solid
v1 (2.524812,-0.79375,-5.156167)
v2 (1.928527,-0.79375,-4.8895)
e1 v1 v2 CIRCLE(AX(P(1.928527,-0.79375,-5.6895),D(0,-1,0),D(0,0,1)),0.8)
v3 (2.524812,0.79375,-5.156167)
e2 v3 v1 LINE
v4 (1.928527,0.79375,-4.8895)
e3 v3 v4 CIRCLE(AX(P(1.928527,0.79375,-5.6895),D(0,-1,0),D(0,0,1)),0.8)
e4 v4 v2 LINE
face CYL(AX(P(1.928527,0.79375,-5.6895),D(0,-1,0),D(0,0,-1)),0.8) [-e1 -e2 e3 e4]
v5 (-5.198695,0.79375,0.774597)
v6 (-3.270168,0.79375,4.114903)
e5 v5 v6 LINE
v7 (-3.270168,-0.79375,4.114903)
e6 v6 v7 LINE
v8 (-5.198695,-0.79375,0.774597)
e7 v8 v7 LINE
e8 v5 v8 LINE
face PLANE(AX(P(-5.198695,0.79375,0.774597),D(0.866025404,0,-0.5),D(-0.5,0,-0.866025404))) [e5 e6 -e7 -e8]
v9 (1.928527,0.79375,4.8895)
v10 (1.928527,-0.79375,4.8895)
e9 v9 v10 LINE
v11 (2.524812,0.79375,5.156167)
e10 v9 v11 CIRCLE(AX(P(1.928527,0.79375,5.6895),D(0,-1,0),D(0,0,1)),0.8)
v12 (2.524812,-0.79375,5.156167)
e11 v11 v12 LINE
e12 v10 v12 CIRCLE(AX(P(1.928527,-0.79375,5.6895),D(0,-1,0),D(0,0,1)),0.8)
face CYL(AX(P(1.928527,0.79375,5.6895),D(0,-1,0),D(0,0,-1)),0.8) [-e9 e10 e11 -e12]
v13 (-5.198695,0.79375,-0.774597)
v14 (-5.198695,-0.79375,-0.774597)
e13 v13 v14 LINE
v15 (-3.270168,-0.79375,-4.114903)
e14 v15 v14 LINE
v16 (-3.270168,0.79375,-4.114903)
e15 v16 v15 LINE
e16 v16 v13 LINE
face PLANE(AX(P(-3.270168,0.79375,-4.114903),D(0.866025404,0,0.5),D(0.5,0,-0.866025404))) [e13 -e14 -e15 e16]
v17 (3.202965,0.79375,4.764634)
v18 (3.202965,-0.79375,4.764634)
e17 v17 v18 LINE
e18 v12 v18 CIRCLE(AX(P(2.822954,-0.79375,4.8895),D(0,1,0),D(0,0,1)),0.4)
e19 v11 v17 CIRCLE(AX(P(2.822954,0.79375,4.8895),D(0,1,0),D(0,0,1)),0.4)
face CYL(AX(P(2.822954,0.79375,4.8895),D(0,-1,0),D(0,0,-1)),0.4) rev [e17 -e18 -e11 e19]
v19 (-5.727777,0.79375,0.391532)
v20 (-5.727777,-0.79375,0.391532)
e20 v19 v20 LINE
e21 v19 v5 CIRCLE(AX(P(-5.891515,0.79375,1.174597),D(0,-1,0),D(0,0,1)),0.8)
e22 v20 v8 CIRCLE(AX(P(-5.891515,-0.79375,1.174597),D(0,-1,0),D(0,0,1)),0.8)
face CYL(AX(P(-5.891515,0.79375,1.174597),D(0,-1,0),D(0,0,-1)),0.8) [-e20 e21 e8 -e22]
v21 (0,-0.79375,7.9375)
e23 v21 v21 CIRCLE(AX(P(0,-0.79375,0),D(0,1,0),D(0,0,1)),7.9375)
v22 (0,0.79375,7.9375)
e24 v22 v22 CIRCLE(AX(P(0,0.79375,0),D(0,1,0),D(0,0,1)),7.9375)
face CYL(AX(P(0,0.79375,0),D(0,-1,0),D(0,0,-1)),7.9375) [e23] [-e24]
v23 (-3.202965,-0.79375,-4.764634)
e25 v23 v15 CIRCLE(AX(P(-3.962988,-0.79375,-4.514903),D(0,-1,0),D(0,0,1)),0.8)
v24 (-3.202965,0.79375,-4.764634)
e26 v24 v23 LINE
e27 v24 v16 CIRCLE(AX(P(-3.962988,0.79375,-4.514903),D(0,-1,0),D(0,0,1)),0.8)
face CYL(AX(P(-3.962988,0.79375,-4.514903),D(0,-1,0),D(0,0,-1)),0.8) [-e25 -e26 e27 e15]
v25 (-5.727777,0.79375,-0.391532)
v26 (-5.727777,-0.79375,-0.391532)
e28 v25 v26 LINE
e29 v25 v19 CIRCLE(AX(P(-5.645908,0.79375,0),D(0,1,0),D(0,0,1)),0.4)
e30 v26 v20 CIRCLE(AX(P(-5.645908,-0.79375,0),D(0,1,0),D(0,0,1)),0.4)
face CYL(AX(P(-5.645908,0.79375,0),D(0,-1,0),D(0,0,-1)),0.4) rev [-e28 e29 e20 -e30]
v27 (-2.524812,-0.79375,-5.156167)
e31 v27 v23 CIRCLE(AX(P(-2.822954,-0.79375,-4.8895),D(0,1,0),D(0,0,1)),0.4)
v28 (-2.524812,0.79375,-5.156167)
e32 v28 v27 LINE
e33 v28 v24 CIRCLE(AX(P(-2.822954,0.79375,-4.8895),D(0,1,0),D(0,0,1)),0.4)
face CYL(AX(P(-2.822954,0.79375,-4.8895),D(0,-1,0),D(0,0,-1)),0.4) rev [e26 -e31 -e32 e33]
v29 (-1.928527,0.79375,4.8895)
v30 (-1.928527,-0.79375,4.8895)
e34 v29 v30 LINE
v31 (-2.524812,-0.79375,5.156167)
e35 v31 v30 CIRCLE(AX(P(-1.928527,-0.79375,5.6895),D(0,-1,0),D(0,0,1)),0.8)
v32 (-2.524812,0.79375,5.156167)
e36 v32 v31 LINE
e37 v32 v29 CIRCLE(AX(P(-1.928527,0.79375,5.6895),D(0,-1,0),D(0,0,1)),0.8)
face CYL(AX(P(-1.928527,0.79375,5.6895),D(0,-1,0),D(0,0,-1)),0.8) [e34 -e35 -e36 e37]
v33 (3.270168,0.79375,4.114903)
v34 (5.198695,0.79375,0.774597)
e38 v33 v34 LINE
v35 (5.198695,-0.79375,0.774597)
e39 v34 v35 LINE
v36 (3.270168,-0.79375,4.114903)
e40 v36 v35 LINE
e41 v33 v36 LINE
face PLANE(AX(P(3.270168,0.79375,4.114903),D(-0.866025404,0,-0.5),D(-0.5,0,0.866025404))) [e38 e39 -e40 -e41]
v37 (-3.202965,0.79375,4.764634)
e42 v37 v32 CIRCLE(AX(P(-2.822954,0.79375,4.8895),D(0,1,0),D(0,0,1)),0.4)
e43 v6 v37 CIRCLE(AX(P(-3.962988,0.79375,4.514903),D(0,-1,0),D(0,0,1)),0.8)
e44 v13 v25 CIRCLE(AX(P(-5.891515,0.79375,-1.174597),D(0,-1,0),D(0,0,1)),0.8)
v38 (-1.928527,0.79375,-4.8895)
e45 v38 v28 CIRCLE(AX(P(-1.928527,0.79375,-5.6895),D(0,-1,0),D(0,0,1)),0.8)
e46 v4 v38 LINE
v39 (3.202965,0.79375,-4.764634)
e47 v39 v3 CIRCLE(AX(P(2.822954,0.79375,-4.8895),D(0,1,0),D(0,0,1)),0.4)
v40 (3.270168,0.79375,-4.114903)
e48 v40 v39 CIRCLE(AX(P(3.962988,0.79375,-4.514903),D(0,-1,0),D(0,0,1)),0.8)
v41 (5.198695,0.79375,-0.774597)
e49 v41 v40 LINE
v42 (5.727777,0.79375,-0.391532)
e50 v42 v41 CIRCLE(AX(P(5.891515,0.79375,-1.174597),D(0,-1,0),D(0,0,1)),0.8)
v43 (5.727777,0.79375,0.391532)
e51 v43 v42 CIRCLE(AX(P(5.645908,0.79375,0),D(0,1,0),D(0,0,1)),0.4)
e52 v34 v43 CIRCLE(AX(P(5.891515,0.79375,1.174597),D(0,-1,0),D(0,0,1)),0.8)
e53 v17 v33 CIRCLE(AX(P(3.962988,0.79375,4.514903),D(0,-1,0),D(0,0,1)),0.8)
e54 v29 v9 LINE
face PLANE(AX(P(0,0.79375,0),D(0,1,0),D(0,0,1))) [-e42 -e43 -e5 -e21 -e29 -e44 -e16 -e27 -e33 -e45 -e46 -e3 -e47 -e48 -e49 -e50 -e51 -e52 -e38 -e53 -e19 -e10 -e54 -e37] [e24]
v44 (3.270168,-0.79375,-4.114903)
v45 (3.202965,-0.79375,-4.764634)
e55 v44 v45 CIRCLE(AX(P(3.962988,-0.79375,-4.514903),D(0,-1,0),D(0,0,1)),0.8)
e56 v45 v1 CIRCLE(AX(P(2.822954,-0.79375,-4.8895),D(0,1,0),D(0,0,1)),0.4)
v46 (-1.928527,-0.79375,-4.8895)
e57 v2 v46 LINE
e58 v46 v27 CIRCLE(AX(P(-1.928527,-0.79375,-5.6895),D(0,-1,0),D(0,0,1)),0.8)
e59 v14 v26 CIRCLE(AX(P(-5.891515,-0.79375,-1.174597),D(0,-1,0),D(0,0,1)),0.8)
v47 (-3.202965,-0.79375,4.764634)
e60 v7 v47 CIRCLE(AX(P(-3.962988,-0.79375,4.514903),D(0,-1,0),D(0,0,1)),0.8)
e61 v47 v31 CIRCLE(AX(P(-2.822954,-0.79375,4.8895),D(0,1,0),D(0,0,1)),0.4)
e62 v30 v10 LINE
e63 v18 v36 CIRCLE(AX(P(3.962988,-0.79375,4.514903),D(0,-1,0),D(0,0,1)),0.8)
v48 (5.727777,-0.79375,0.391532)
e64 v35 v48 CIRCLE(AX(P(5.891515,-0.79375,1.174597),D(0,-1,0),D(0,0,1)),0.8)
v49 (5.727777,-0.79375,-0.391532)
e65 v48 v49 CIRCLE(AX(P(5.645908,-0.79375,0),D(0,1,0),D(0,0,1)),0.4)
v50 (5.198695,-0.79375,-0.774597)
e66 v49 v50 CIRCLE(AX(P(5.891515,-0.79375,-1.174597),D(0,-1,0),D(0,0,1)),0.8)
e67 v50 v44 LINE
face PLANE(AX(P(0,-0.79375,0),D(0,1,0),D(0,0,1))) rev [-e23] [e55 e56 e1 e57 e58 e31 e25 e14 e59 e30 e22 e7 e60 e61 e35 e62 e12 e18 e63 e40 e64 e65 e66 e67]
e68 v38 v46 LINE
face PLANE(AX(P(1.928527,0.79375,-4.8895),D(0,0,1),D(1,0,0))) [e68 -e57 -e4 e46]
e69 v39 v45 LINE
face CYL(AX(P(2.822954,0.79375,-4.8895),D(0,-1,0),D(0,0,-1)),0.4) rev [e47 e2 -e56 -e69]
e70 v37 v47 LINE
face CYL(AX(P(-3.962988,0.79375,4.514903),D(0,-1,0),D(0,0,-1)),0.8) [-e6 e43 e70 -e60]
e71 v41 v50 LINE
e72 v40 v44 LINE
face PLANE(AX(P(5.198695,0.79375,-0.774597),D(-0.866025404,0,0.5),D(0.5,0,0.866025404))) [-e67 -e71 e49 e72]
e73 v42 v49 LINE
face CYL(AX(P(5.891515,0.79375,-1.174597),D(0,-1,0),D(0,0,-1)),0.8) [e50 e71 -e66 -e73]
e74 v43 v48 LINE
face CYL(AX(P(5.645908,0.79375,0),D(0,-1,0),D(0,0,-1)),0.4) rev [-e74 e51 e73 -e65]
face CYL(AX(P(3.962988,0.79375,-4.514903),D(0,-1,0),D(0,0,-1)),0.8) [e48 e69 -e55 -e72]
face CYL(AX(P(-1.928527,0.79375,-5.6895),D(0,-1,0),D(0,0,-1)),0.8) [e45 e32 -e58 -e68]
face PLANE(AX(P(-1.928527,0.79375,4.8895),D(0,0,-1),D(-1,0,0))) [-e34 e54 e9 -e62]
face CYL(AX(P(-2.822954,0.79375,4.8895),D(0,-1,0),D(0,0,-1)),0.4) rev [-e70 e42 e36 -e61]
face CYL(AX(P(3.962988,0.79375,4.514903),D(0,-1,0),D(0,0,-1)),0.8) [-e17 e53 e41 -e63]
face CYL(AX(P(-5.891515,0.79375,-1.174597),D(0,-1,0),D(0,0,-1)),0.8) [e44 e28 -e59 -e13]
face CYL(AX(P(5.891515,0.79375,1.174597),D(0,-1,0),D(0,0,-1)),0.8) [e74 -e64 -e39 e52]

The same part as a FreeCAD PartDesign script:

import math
import FreeCAD as App
import Part
import Sketcher
Q = App.Units.Quantity

doc = App.newDocument("Part")
params = doc.addObject("Spreadsheet::Sheet", "Params")
for row, (alias, value) in enumerate([
    ("sketch1_radius", "0.8 mm"),
    ("sketch1_radius2", "0.4 mm"),
    ("pad1_length", "1.5875 mm"),
], start=1):
    params.set(f"A{row}", alias)
    params.set(f"B{row}", "=" + value)
    params.setAlias(f"B{row}", alias)

body = doc.addObject("PartDesign::Body", "Body")

sketch1 = body.newObject("Sketcher::SketchObject", "Sketch")
sketch1.AttachmentSupport = (doc.getObject("XZ_Plane"), [""])
sketch1.MapMode = "FlatFace"
sketch1.addGeometry(Part.Circle(App.Vector(0, 0, 0), App.Vector(0, 0, 1), 7.94), False)
sketch1.addGeometry(Part.LineSegment(App.Vector(5.2, 0.77, 0), App.Vector(3.27, 4.11, 0)), False)
sketch1.addGeometry(Part.ArcOfCircle(Part.Circle(App.Vector(3.96, 4.51, 0), App.Vector(0, 0, 1), 0.8), math.radians(162), math.radians(210)), False)
sketch1.addGeometry(Part.ArcOfCircle(Part.Circle(App.Vector(2.82, 4.89, 0), App.Vector(0, 0, 1), 0.4), math.radians(-18), math.radians(138)), False)
sketch1.addGeometry(Part.ArcOfCircle(Part.Circle(App.Vector(1.93, 5.69, 0), App.Vector(0, 0, 1), 0.8), math.radians(-90), math.radians(-42)), False)
sketch1.addGeometry(Part.LineSegment(App.Vector(1.93, 4.89, 0), App.Vector(-1.93, 4.89, 0)), False)
sketch1.addGeometry(Part.ArcOfCircle(Part.Circle(App.Vector(-1.93, 5.69, 0), App.Vector(0, 0, 1), 0.8), math.radians(-138), math.radians(-90)), False)
sketch1.addGeometry(Part.ArcOfCircle(Part.Circle(App.Vector(-2.82, 4.89, 0), App.Vector(0, 0, 1), 0.4), math.radians(42), math.radians(198)), False)
sketch1.addGeometry(Part.ArcOfCircle(Part.Circle(App.Vector(-3.96, 4.51, 0), App.Vector(0, 0, 1), 0.8), math.radians(-30), math.radians(18)), False)
sketch1.addGeometry(Part.LineSegment(App.Vector(-3.27, 4.11, 0), App.Vector(-5.2, 0.77, 0)), False)
sketch1.addGeometry(Part.ArcOfCircle(Part.Circle(App.Vector(-5.89, 1.17, 0), App.Vector(0, 0, 1), 0.8), math.radians(-78), math.radians(-30)), False)
sketch1.addGeometry(Part.ArcOfCircle(Part.Circle(App.Vector(-5.65, 0, 0), App.Vector(0, 0, 1), 0.4), math.radians(102), math.radians(258)), False)
sketch1.addGeometry(Part.ArcOfCircle(Part.Circle(App.Vector(-5.89, -1.17, 0), App.Vector(0, 0, 1), 0.8), math.radians(30), math.radians(78)), False)
sketch1.addGeometry(Part.LineSegment(App.Vector(-5.2, -0.77, 0), App.Vector(-3.27, -4.11, 0)), False)
sketch1.addGeometry(Part.ArcOfCircle(Part.Circle(App.Vector(-3.96, -4.51, 0), App.Vector(0, 0, 1), 0.8), math.radians(-18), math.radians(30)), False)
sketch1.addGeometry(Part.ArcOfCircle(Part.Circle(App.Vector(-2.82, -4.89, 0), App.Vector(0, 0, 1), 0.4), math.radians(162), math.radians(318)), False)
sketch1.addGeometry(Part.ArcOfCircle(Part.Circle(App.Vector(-1.93, -5.69, 0), App.Vector(0, 0, 1), 0.8), math.radians(90), math.radians(138)), False)
sketch1.addGeometry(Part.LineSegment(App.Vector(-1.93, -4.89, 0), App.Vector(1.93, -4.89, 0)), False)
sketch1.addGeometry(Part.ArcOfCircle(Part.Circle(App.Vector(1.93, -5.69, 0), App.Vector(0, 0, 1), 0.8), math.radians(42), math.radians(90)), False)
sketch1.addGeometry(Part.ArcOfCircle(Part.Circle(App.Vector(2.82, -4.89, 0), App.Vector(0, 0, 1), 0.4), math.radians(-138), math.radians(18)), False)
sketch1.addGeometry(Part.ArcOfCircle(Part.Circle(App.Vector(3.96, -4.51, 0), App.Vector(0, 0, 1), 0.8), math.radians(150), math.radians(198)), False)
sketch1.addGeometry(Part.LineSegment(App.Vector(3.27, -4.11, 0), App.Vector(5.2, -0.77, 0)), False)
sketch1.addGeometry(Part.ArcOfCircle(Part.Circle(App.Vector(5.89, -1.17, 0), App.Vector(0, 0, 1), 0.8), math.radians(102), math.radians(150)), False)
sketch1.addGeometry(Part.ArcOfCircle(Part.Circle(App.Vector(5.65, 0, 0), App.Vector(0, 0, 1), 0.4), math.radians(-78), math.radians(78)), False)
sketch1.addGeometry(Part.ArcOfCircle(Part.Circle(App.Vector(5.89, 1.17, 0), App.Vector(0, 0, 1), 0.8), math.radians(-150), math.radians(-102)), False)
sketch1.addConstraint(Sketcher.Constraint("Tangent", 1, 2, 2, 2))
sketch1.addConstraint(Sketcher.Constraint("Tangent", 2, 1, 3, 1))
sketch1.addConstraint(Sketcher.Constraint("Tangent", 3, 2, 4, 2))
sketch1.addConstraint(Sketcher.Constraint("Tangent", 4, 1, 5, 1))
sketch1.addConstraint(Sketcher.Constraint("Tangent", 5, 2, 6, 2))
sketch1.addConstraint(Sketcher.Constraint("Tangent", 6, 1, 7, 1))
sketch1.addConstraint(Sketcher.Constraint("Tangent", 7, 2, 8, 2))
sketch1.addConstraint(Sketcher.Constraint("Tangent", 8, 1, 9, 1))
sketch1.addConstraint(Sketcher.Constraint("Tangent", 9, 2, 10, 2))
sketch1.addConstraint(Sketcher.Constraint("Tangent", 10, 1, 11, 1))
sketch1.addConstraint(Sketcher.Constraint("Tangent", 11, 2, 12, 2))
sketch1.addConstraint(Sketcher.Constraint("Tangent", 12, 1, 13, 1))
sketch1.addConstraint(Sketcher.Constraint("Tangent", 13, 2, 14, 2))
sketch1.addConstraint(Sketcher.Constraint("Tangent", 14, 1, 15, 1))
sketch1.addConstraint(Sketcher.Constraint("Tangent", 15, 2, 16, 2))
sketch1.addConstraint(Sketcher.Constraint("Tangent", 16, 1, 17, 1))
sketch1.addConstraint(Sketcher.Constraint("Tangent", 17, 2, 18, 2))
sketch1.addConstraint(Sketcher.Constraint("Tangent", 18, 1, 19, 1))
sketch1.addConstraint(Sketcher.Constraint("Tangent", 19, 2, 20, 2))
sketch1.addConstraint(Sketcher.Constraint("Tangent", 20, 1, 21, 1))
sketch1.addConstraint(Sketcher.Constraint("Tangent", 21, 2, 22, 2))
sketch1.addConstraint(Sketcher.Constraint("Tangent", 22, 1, 23, 1))
sketch1.addConstraint(Sketcher.Constraint("Tangent", 23, 2, 24, 2))
sketch1.addConstraint(Sketcher.Constraint("Tangent", 24, 1, 1, 1))
sketch1.addConstraint(Sketcher.Constraint("Horizontal", 5))
sketch1.addConstraint(Sketcher.Constraint("Horizontal", 17))
sketch1.addConstraint(Sketcher.Constraint("Coincident", 0, 3, -1, 1))
sketch1.addConstraint(Sketcher.Constraint("Equal", 2, 4))
sketch1.addConstraint(Sketcher.Constraint("Equal", 4, 6))
sketch1.addConstraint(Sketcher.Constraint("Equal", 3, 7))
sketch1.addConstraint(Sketcher.Constraint("Equal", 6, 8))
sketch1.addConstraint(Sketcher.Constraint("Equal", 8, 10))
sketch1.addConstraint(Sketcher.Constraint("Equal", 7, 11))
sketch1.addConstraint(Sketcher.Constraint("Equal", 10, 12))
sketch1.addConstraint(Sketcher.Constraint("Equal", 12, 14))
sketch1.addConstraint(Sketcher.Constraint("Equal", 11, 15))
sketch1.addConstraint(Sketcher.Constraint("Equal", 14, 16))
sketch1.addConstraint(Sketcher.Constraint("Equal", 16, 18))
sketch1.addConstraint(Sketcher.Constraint("Equal", 15, 19))
sketch1.addConstraint(Sketcher.Constraint("Equal", 18, 20))
sketch1.addConstraint(Sketcher.Constraint("Equal", 20, 22))
sketch1.addConstraint(Sketcher.Constraint("Equal", 19, 23))
sketch1.addConstraint(Sketcher.Constraint("Equal", 22, 24))
sketch1.addConstraint(Sketcher.Constraint("Symmetric", 2, 3, 14, 3, -1, 1))
sketch1.addConstraint(Sketcher.Constraint("Symmetric", 4, 3, 16, 3, -1, 1))
sketch1.addConstraint(Sketcher.Constraint("Symmetric", 7, 3, 19, 3, -1, 1))
sketch1.addConstraint(Sketcher.Constraint("Symmetric", 10, 3, 22, 3, -1, 1))
sketch1.addConstraint(Sketcher.Constraint("Symmetric", 12, 3, 24, 3, -1, 1))
sketch1.addConstraint(Sketcher.Constraint("Symmetric", 3, 3, 7, 3, -2))
sketch1.addConstraint(Sketcher.Constraint("Symmetric", 12, 3, 22, 3, -2))
sketch1.addConstraint(Sketcher.Constraint("Parallel", 9, 21))
sketch1.addConstraint(Sketcher.Constraint("Horizontal", 2, 3, 8, 3))
sketch1.addConstraint(Sketcher.Constraint("Horizontal", 7, 3, 4, 1))
sketch1.addConstraint(Sketcher.Constraint("Radius", 2, 0.8))
sketch1.addConstraint(Sketcher.Constraint("Radius", 3, 0.4))
sketch1.addConstraint(Sketcher.Constraint("Angle", 1, Q("120 deg")))
sketch1.addConstraint(Sketcher.Constraint("Diameter", 0, 15.875))
sketch1.addConstraint(Sketcher.Constraint("DistanceY", -1, 1, 3, 3, 4.8895))
sketch1.addConstraint(Sketcher.Constraint("DistanceY", 12, 3, 8, 3, 5.6895))
sketch1.addConstraint(Sketcher.Constraint("DistanceX", 5, 2, 5, 1, 3.857054))
sketch1.addConstraint(Sketcher.Constraint("DistanceX", -1, 1, 2, 3, 3.962988))
sketch1.setExpression("Constraints[53]", "Params.sketch1_radius")
sketch1.setExpression("Constraints[54]", "Params.sketch1_radius2")
pad1 = body.newObject("PartDesign::Pad", "Pad")
pad1.Profile = sketch1
pad1.setExpression("Length", "Params.pad1_length")
pad1.Midplane = True

doc.recompute()
